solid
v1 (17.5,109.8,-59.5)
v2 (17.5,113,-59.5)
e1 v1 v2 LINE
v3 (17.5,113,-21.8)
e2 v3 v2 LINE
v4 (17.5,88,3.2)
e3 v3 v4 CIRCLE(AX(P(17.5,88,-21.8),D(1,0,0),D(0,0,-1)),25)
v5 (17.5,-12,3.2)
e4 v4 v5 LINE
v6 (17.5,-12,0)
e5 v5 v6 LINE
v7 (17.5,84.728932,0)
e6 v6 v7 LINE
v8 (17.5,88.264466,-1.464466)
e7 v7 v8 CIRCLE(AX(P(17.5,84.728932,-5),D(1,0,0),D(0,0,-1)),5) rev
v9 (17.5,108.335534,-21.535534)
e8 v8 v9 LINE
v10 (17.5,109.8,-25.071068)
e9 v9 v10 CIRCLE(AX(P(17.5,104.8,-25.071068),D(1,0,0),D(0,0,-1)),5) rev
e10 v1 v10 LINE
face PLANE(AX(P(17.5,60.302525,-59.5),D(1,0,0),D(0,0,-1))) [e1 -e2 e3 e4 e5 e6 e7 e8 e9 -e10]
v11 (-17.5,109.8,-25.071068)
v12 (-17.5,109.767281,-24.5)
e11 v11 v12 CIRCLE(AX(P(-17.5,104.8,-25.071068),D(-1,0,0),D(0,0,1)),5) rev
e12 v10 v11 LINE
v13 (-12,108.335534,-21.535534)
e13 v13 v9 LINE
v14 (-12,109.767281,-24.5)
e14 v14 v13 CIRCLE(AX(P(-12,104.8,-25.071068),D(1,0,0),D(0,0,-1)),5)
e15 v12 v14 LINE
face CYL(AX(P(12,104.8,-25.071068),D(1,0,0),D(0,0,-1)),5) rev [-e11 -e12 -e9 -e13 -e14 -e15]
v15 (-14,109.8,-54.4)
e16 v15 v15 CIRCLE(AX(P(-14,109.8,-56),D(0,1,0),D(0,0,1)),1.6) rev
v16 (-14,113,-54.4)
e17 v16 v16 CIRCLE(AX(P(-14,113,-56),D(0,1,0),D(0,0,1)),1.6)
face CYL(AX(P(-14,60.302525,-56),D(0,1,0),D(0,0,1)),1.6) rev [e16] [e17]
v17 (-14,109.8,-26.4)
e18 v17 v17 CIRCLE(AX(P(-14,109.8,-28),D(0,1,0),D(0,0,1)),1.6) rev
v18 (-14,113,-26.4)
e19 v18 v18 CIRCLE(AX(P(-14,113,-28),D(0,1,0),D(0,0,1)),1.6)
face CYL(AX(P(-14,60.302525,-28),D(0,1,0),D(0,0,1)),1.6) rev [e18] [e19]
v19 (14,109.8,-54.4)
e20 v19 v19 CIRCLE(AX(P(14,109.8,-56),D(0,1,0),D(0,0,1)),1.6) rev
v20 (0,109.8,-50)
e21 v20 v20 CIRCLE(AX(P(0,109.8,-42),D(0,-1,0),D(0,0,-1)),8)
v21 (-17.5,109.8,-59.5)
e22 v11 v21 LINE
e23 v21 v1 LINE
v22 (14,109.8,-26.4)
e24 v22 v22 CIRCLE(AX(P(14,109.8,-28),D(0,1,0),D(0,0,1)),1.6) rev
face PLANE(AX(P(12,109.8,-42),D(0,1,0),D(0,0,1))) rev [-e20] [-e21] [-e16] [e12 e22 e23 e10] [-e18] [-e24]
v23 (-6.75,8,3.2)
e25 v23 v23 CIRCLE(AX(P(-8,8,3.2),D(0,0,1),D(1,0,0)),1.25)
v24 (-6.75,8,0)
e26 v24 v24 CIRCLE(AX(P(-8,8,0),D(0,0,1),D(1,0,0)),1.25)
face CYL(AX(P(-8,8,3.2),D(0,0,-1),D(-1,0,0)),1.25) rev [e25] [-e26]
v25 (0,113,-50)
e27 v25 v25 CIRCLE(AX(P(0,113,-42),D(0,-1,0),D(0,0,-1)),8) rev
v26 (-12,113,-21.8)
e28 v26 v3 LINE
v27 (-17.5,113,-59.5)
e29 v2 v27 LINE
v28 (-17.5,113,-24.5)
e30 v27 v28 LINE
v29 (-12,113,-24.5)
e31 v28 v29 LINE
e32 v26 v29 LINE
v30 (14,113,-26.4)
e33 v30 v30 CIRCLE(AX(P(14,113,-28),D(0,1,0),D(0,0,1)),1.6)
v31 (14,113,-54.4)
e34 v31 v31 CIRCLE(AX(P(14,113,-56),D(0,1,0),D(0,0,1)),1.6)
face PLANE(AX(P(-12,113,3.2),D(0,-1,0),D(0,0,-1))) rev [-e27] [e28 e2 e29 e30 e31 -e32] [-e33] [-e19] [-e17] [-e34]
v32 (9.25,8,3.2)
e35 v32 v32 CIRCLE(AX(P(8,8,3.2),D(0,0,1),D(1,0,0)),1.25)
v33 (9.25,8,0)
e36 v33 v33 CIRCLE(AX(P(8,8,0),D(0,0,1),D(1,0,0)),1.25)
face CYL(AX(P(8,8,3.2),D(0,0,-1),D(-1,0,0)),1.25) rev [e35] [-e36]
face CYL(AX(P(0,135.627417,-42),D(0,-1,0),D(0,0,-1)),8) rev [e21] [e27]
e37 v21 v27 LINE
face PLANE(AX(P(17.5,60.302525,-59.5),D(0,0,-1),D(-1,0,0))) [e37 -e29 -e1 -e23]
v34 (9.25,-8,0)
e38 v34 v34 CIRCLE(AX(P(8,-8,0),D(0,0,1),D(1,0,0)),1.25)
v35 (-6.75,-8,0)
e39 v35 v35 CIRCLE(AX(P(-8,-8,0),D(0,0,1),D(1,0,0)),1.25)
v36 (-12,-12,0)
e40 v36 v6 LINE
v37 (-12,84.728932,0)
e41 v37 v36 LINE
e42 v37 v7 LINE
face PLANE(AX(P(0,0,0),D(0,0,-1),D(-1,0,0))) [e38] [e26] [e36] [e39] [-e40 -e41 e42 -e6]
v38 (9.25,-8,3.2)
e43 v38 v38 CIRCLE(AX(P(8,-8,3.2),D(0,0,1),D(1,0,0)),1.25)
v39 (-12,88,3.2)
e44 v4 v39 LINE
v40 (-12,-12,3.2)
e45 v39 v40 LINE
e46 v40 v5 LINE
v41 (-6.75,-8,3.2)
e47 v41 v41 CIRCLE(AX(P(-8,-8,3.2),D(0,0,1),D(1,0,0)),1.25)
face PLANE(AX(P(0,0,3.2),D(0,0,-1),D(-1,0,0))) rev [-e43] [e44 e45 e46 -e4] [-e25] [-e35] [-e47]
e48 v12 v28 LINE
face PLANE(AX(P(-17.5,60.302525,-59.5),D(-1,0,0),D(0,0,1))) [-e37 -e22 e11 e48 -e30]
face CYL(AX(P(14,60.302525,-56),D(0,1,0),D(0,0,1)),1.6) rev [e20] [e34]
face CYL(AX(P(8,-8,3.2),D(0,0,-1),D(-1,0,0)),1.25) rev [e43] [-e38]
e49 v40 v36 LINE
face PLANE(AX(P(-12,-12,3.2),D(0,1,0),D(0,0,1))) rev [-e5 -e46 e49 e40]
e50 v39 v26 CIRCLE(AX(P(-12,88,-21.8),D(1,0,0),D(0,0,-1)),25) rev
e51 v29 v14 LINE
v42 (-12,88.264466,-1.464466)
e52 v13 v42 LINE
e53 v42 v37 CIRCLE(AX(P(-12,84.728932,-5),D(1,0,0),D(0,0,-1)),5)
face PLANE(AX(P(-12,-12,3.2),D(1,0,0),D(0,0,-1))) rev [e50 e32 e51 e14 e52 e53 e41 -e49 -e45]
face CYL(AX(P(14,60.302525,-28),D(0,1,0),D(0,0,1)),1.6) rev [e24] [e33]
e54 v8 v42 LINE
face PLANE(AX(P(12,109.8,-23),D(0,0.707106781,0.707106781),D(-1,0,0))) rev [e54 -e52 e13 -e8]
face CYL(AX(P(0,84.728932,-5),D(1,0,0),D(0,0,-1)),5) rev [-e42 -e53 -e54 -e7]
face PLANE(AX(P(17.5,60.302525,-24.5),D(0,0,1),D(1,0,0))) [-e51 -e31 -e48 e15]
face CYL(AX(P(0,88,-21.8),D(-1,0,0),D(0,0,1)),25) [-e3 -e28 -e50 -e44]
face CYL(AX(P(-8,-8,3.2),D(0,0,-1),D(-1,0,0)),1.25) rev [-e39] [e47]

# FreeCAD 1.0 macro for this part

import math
import FreeCAD as App
import Part
import Sketcher

V = App.Vector
Q = App.Units.Quantity


def edges_at(feature, points):
    """Names of the edges that pass closest to the given points."""
    edges = feature.Shape.Edges
    near = lambda p: min(range(len(edges)), key=lambda i: edges[i].distToShape(Part.Vertex(*p))[0])
    return sorted({f"Edge{near(p) + 1}" for p in points})


def add_polygon(sketch, points):
    """Adds a closed chain of lines whose ends are joined by coincident constraints."""
    first, n = sketch.GeometryCount, len(points)
    for a, b in zip(points, points[1:] + points[:1]):
        sketch.addGeometry(Part.LineSegment(App.Vector(*a, 0), App.Vector(*b, 0)), False)
    for i in range(n):
        sketch.addConstraint(Sketcher.Constraint("Coincident", first + i, 2, first + (i + 1) % n, 1))

doc = App.newDocument("Part")
body = doc.addObject("PartDesign::Body", "Body")

# Sketch on XY plane
sketch1 = body.newObject("Sketcher::SketchObject", "Sketch")
sketch1.AttachmentSupport = (doc.getObject("XY_Plane"), [""])
sketch1.MapMode = "FlatFace"
add_polygon(sketch1, [(-12, 113), (-12, -12), (12, -12), (12, 113)])  # lines 0-3
sketch1.addGeometry(Part.Circle(V(-8, -8, 0), V(0, 0, 1), 1.25), False)  # 4
sketch1.addGeometry(Part.Circle(V(8, -8, 0), V(0, 0, 1), 1.25), False)  # 5
sketch1.addGeometry(Part.Circle(V(-8, 8, 0), V(0, 0, 1), 1.25), False)  # 6
sketch1.addGeometry(Part.Circle(V(8, 8, 0), V(0, 0, 1), 1.25), False)  # 7
sketch1.addConstraint([
    Sketcher.Constraint("Vertical", 0),
    Sketcher.Constraint("Horizontal", 1),
    Sketcher.Constraint("Vertical", 2),
    Sketcher.Constraint("Horizontal", 3),
    Sketcher.Constraint("Equal", 4, 5),
    Sketcher.Constraint("Equal", 5, 6),
    Sketcher.Constraint("Equal", 6, 7),
    Sketcher.Constraint("Symmetric", 5, 3, 6, 3, -1, 1),
    Sketcher.Constraint("Symmetric", 4, 3, 7, 3, -1, 1),
    Sketcher.Constraint("Symmetric", 4, 3, 5, 3, -2),
    Sketcher.Constraint("Diameter", 4, 2.5),
    Sketcher.Constraint("DistanceX", 1, 1, 1, 2, 24.0),
    Sketcher.Constraint("DistanceY", 0, 2, 0, 1, 125.0),
    Sketcher.Constraint("DistanceX", 4, 3, -1, 1, 8.0),
    Sketcher.Constraint("DistanceY", 4, 3, -1, 1, 8.0),
    Sketcher.Constraint("DistanceX", 0, 2, -1, 1, 12.0),
    Sketcher.Constraint("DistanceY", 0, 2, -1, 1, 12.0),
])
pad1 = body.newObject("PartDesign::Pad", "Pad")
pad1.Profile = sketch1
pad1.Length = 3.2

# Sketch on XY plane
sketch2 = body.newObject("Sketcher::SketchObject", "Sketch001")
sketch2.AttachmentSupport = (doc.getObject("XY_Plane"), [""])
sketch2.MapMode = "FlatFace"
add_polygon(sketch2, [(12, 113), (12, 109.8), (-12, 109.8), (-12, 113)])  # lines 0-3
sketch2.addConstraint([
    Sketcher.Constraint("Vertical", 0),
    Sketcher.Constraint("Horizontal", 1),
    Sketcher.Constraint("Vertical", 2),
    Sketcher.Constraint("Horizontal", 3),
    Sketcher.Constraint("DistanceX", 1, 2, 1, 1, 24.0),
    Sketcher.Constraint("DistanceY", 0, 2, 0, 1, 3.2),
    Sketcher.Constraint("DistanceX", -1, 1, 0, 2, 12.0),
    Sketcher.Constraint("DistanceY", -1, 1, 2, 2, 113.0),
])
pad2 = body.newObject("PartDesign::Pad", "Pad001")
pad2.Profile = sketch2
pad2.Length = 42
pad2.Reversed = True

# Sketch on XZ plane
sketch3 = body.newObject("Sketcher::SketchObject", "Sketch002")
sketch3.AttachmentSupport = (doc.getObject("XZ_Plane"), [""])
sketch3.MapMode = "FlatFace"
sketch3.AttachmentOffset = App.Placement(V(0, 0, -113), App.Rotation())
add_polygon(sketch3, [(-17.5, -59.5), (-17.5, -24.5), (17.5, -24.5), (17.5, -59.5)])  # lines 0-3
sketch3.addGeometry(Part.Circle(V(-14, -28, 0), V(0, 0, 1), 1.6), False)  # 4
sketch3.addGeometry(Part.Circle(V(14, -28, 0), V(0, 0, 1), 1.6), False)  # 5
sketch3.addGeometry(Part.Circle(V(-14, -56, 0), V(0, 0, 1), 1.6), False)  # 6
sketch3.addGeometry(Part.Circle(V(14, -56, 0), V(0, 0, 1), 1.6), False)  # 7
sketch3.addConstraint([
    Sketcher.Constraint("Vertical", 0),
    Sketcher.Constraint("Horizontal", 1),
    Sketcher.Constraint("Vertical", 2),
    Sketcher.Constraint("Horizontal", 3),
    Sketcher.Constraint("Equal", 4, 5),
    Sketcher.Constraint("Equal", 5, 6),
    Sketcher.Constraint("Equal", 6, 7),
    Sketcher.Constraint("Symmetric", 4, 3, 5, 3, -2),
    Sketcher.Constraint("Symmetric", 6, 3, 7, 3, -2),
    Sketcher.Constraint("Vertical", 4, 3, 6, 3),
    Sketcher.Constraint("Equal", 3, 0),
    Sketcher.Constraint("Diameter", 4, 3.2),
    Sketcher.Constraint("DistanceX", 1, 1, 1, 2, 35.0),
    Sketcher.Constraint("DistanceX", 4, 3, -1, 1, 14.0),
    Sketcher.Constraint("DistanceY", 4, 3, -1, 1, 28.0),
    Sketcher.Constraint("DistanceY", 6, 3, -1, 1, 56.0),
    Sketcher.Constraint("DistanceX", 0, 2, -1, 1, 17.5),
    Sketcher.Constraint("DistanceY", 0, 2, -1, 1, 24.5),
])
pad3 = body.newObject("PartDesign::Pad", "Pad002")
pad3.Profile = sketch3
pad3.Length = 3.2

# Sketch on XZ plane
sketch4 = body.newObject("Sketcher::SketchObject", "Sketch003")
sketch4.AttachmentSupport = (doc.getObject("XZ_Plane"), [""])
sketch4.MapMode = "FlatFace"
sketch4.AttachmentOffset = App.Placement(V(0, 0, -109.8), App.Rotation())
sketch4.addGeometry(Part.Circle(V(0, -42, 0), V(0, 0, 1), 8), False)
sketch4.addConstraint([
    Sketcher.Constraint("PointOnObject", 0, 3, -2),
    Sketcher.Constraint("Diameter", 0, 16.0),
    Sketcher.Constraint("DistanceY", 0, 3, -1, 1, 42.0),
])
pocket1 = body.newObject("PartDesign::Pocket", "Pocket")
pocket1.Profile = sketch4
pocket1.Length = 3.2
doc.recompute()

chamfer = body.newObject("PartDesign::Chamfer", "Chamfer")
chamfer.Base = (pocket1, edges_at(pocket1, [(0, 109.8, 0)]))
chamfer.Size = 23
doc.recompute()

fillet = body.newObject("PartDesign::Fillet", "Fillet")
fillet.Base = (chamfer, edges_at(chamfer, [(0, 113, 3.2)]))
fillet.Radius = 25
doc.recompute()

fillet2 = body.newObject("PartDesign::Fillet", "Fillet001")
fillet2.Base = (fillet, edges_at(fillet, [(0, 109.8, -23), (0, 86.8, 0)]))
fillet2.Radius = 5

# Sketch on YZ plane
sketch5 = body.newObject("Sketcher::SketchObject", "Sketch004")
sketch5.AttachmentSupport = (doc.getObject("YZ_Plane"), [""])
sketch5.MapMode = "FlatFace"
sketch5.AttachmentOffset = App.Placement(V(0, 0, 17.5), App.Rotation())
sketch5.addGeometry([
    Part.LineSegment(V(113, -24.5, 0), V(113, -21.8, 0)),  # 0
    Part.ArcOfCircle(Part.Circle(V(88, -21.8, 0), V(0, 0, 1), 25), math.radians(0), math.radians(90)),  # 1
    Part.LineSegment(V(88, 3.2, 0), V(-12, 3.2, 0)),  # 2
    Part.LineSegment(V(-12, 3.2, 0), V(-12, 0, 0)),  # 3
    Part.LineSegment(V(-12, 0, 0), V(84.728932, 0, 0)),  # 4
    Part.ArcOfCircle(Part.Circle(V(84.728932, -5, 0), V(0, 0, 1), 5), math.radians(45), math.radians(90)),  # 5
    Part.LineSegment(V(88.264466, -1.464466, 0), V(108.335534, -21.535534, 0)),  # 6
    Part.ArcOfCircle(Part.Circle(V(104.8, -25.071068, 0), V(0, 0, 1), 5), math.radians(6.558267), math.radians(45)),  # 7
    Part.LineSegment(V(109.767281, -24.5, 0), V(113, -24.5, 0)),  # 8
], False)
sketch5.addConstraint([
    Sketcher.Constraint("Tangent", 0, 2, 1, 1),
    Sketcher.Constraint("Tangent", 1, 2, 2, 1),
    Sketcher.Constraint("Coincident", 2, 2, 3, 1),
    Sketcher.Constraint("Coincident", 3, 2, 4, 1),
    Sketcher.Constraint("Tangent", 4, 2, 5, 2),
    Sketcher.Constraint("Tangent", 5, 1, 6, 1),
    Sketcher.Constraint("Tangent", 6, 2, 7, 2),
    Sketcher.Constraint("Coincident", 7, 1, 8, 1),
    Sketcher.Constraint("Coincident", 8, 2, 0, 1),
    Sketcher.Constraint("Vertical", 0),
    Sketcher.Constraint("Horizontal", 2),
    Sketcher.Constraint("Vertical", 3),
    Sketcher.Constraint("Horizontal", 4),
    Sketcher.Constraint("Horizontal", 8),
    Sketcher.Constraint("Equal", 5, 7),
    Sketcher.Constraint("PointOnObject", 3, 2, -1),
    Sketcher.Constraint("Radius", 1, 25.0),
    Sketcher.Constraint("Radius", 5, 5.0),
    Sketcher.Constraint("DistanceX", 2, 2, 2, 1, 100.0),
    Sketcher.Constraint("Angle", 6, Q("-45 deg")),
    Sketcher.Constraint("DistanceY", 0, 1, 0, 2, 2.7),
    Sketcher.Constraint("DistanceY", 3, 2, 3, 1, 3.2),
    Sketcher.Constraint("DistanceX", -1, 1, 1, 3, 88.0),
    Sketcher.Constraint("DistanceX", -1, 1, 7, 3, 104.8),
    Sketcher.Constraint("DistanceX", 8, 1, 8, 2, 3.232719),
])
pad4 = body.newObject("PartDesign::Pad", "Pad003")
pad4.Profile = sketch5
pad4.Length = 5.5
pad4.Reversed = True

doc.recompute()
